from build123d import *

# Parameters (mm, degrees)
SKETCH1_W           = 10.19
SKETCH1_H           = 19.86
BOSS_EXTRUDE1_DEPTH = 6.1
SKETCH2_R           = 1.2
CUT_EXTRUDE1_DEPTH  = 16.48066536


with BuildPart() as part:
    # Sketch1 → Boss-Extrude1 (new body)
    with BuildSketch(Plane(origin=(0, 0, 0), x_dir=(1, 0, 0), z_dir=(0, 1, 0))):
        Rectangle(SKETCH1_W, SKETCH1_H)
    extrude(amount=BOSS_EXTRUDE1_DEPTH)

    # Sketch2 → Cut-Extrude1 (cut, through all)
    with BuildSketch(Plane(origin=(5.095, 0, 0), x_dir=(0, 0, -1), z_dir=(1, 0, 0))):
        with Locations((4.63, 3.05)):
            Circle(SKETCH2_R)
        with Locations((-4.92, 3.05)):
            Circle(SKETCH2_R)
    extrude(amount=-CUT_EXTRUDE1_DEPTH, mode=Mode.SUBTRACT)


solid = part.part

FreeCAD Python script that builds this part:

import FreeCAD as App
import Part
import Sketcher
from FreeCAD import Vector
Q = App.Units.Quantity

doc = App.newDocument("Part")
body = doc.addObject("PartDesign::Body", "Body")

sketch1 = body.newObject("Sketcher::SketchObject", "Sketch")
sketch1.AttachmentSupport = (doc.getObject("XZ_Plane"), [""])
sketch1.MapMode = "FlatFace"
sketch1.addGeometry(Part.LineSegment(Vector(-5, -10, 0), Vector(-5, 10, 0)), False)
sketch1.addGeometry(Part.LineSegment(Vector(-5, 10, 0), Vector(5, 10, 0)), False)
sketch1.addGeometry(Part.LineSegment(Vector(5, 10, 0), Vector(5, -10, 0)), False)
sketch1.addGeometry(Part.LineSegment(Vector(5, -10, 0), Vector(-5, -10, 0)), False)
sketch1.addConstraint(Sketcher.Constraint("Coincident", 0, 2, 1, 1))
sketch1.addConstraint(Sketcher.Constraint("Coincident", 1, 2, 2, 1))
sketch1.addConstraint(Sketcher.Constraint("Coincident", 2, 2, 3, 1))
sketch1.addConstraint(Sketcher.Constraint("Coincident", 3, 2, 0, 1))
sketch1.addConstraint(Sketcher.Constraint("Vertical", 0))
sketch1.addConstraint(Sketcher.Constraint("Horizontal", 1))
sketch1.addConstraint(Sketcher.Constraint("Vertical", 2))
sketch1.addConstraint(Sketcher.Constraint("Horizontal", 3))
sketch1.addConstraint(Sketcher.Constraint("Symmetric", 0, 2, 2, 2, -1, 1))
sketch1.addConstraint(Sketcher.Constraint("DistanceX", 1, 1, 1, 2, Q("10.19 mm")))
sketch1.addConstraint(Sketcher.Constraint("DistanceY", 0, 1, 0, 2, Q("19.86 mm")))
pad1 = body.newObject("PartDesign::Pad", "Pad")
pad1.Profile = sketch1
pad1.Length = 6.1
pad1.Reversed = True

sketch2 = body.newObject("Sketcher::SketchObject", "Sketch001")
sketch2.AttachmentSupport = (doc.getObject("YZ_Plane"), [""])
sketch2.MapMode = "FlatFace"
sketch2.AttachmentOffset = App.Placement(Vector(0, 0, 5.095), App.Rotation())
sketch2.addGeometry(Part.Circle(Vector(3, -4.6, 0), Vector(0, 0, 1), 1.2), False)
sketch2.addGeometry(Part.Circle(Vector(3, 4.9, 0), Vector(0, 0, 1), 1.2), False)
sketch2.addConstraint(Sketcher.Constraint("Equal", 0, 1))
sketch2.addConstraint(Sketcher.Constraint("Vertical", 0, 3, 1, 3))
sketch2.addConstraint(Sketcher.Constraint("Diameter", 0, Q("2.4 mm")))
sketch2.addConstraint(Sketcher.Constraint("DistanceX", -1, 1, 0, 3, Q("3.05 mm")))
sketch2.addConstraint(Sketcher.Constraint("DistanceY", 0, 3, -1, 1, Q("4.63 mm")))
sketch2.addConstraint(Sketcher.Constraint("DistanceY", -1, 1, 1, 3, Q("4.92 mm")))
pocket1 = body.newObject("PartDesign::Pocket", "Pocket")
pocket1.Profile = sketch2
pocket1.Type = "ThroughAll"

doc.recompute()
